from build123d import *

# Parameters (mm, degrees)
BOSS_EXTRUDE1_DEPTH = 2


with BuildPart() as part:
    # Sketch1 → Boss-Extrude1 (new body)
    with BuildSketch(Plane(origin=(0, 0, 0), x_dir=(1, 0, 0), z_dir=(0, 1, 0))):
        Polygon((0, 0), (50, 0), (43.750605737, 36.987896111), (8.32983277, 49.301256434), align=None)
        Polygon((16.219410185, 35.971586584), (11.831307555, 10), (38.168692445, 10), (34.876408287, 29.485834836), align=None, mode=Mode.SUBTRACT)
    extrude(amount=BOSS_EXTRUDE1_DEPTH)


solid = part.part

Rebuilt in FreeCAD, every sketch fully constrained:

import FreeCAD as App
import Part
import Sketcher
Q = App.Units.Quantity

doc = App.newDocument("Part")
body = doc.addObject("PartDesign::Body", "Body")

# Sketch on XZ plane
sketch1 = body.newObject("Sketcher::SketchObject", "Sketch")
sketch1.AttachmentSupport = (doc.getObject("XZ_Plane"), [""])
sketch1.MapMode = "FlatFace"
sketch1.addGeometry([
    Part.LineSegment(App.Vector(0, 0, 0), App.Vector(50, 0, 0)),  # 0
    Part.LineSegment(App.Vector(50, 0, 0), App.Vector(44, -37, 0)),  # 1
    Part.LineSegment(App.Vector(44, -37, 0), App.Vector(8, -49, 0)),  # 2
    Part.LineSegment(App.Vector(8, -49, 0), App.Vector(0, 0, 0)),  # 3
    Part.LineSegment(App.Vector(12, -10, 0), App.Vector(16, -36, 0)),  # 4
    Part.LineSegment(App.Vector(16, -36, 0), App.Vector(35, -29, 0)),  # 5
    Part.LineSegment(App.Vector(35, -29, 0), App.Vector(38, -10, 0)),  # 6
    Part.LineSegment(App.Vector(38, -10, 0), App.Vector(12, -10, 0)),  # 7
], False)
sketch1.addConstraint([
    Sketcher.Constraint("Coincident", 0, 2, 1, 1),
    Sketcher.Constraint("Coincident", 1, 2, 2, 1),
    Sketcher.Constraint("Coincident", 2, 2, 3, 1),
    Sketcher.Constraint("Coincident", 3, 2, 0, 1),
    Sketcher.Constraint("Coincident", 4, 2, 5, 1),
    Sketcher.Constraint("Coincident", 5, 2, 6, 1),
    Sketcher.Constraint("Coincident", 6, 2, 7, 1),
    Sketcher.Constraint("Coincident", 7, 2, 4, 1),
    Sketcher.Constraint("Horizontal", 0),
    Sketcher.Constraint("Horizontal", 7),
    Sketcher.Constraint("Coincident", 3, 2, -1, 1),
    Sketcher.Constraint("Parallel", 3, 4),
    Sketcher.Constraint("Parallel", 2, 5),
    Sketcher.Constraint("Parallel", 1, 6),
    Sketcher.Constraint("DistanceX", 0, 1, 0, 2, Q("50 mm")),
    Sketcher.Constraint("Distance", 3, Q("50 mm")),
    Sketcher.Constraint("DistanceY", 6, 2, -1, 1, Q("10 mm")),
    Sketcher.Constraint("Distance", 2, Q("37.5 mm")),
    Sketcher.Constraint("Angle", 1, Q("-99.59 deg")),
    Sketcher.Constraint("Angle", 3, Q("99.59 deg")),
    Sketcher.Constraint("DistanceX", 4, 2, 5, 2, Q("18.656998 mm")),
    Sketcher.Constraint("DistanceX", 7, 2, 5, 2, Q("23.045101 mm")),
    Sketcher.Constraint("DistanceX", -1, 1, 4, 2, Q("16.21941 mm")),
])
pad1 = body.newObject("PartDesign::Pad", "Pad")
pad1.Profile = sketch1
pad1.Length = 2
pad1.Reversed = True

doc.recompute()
